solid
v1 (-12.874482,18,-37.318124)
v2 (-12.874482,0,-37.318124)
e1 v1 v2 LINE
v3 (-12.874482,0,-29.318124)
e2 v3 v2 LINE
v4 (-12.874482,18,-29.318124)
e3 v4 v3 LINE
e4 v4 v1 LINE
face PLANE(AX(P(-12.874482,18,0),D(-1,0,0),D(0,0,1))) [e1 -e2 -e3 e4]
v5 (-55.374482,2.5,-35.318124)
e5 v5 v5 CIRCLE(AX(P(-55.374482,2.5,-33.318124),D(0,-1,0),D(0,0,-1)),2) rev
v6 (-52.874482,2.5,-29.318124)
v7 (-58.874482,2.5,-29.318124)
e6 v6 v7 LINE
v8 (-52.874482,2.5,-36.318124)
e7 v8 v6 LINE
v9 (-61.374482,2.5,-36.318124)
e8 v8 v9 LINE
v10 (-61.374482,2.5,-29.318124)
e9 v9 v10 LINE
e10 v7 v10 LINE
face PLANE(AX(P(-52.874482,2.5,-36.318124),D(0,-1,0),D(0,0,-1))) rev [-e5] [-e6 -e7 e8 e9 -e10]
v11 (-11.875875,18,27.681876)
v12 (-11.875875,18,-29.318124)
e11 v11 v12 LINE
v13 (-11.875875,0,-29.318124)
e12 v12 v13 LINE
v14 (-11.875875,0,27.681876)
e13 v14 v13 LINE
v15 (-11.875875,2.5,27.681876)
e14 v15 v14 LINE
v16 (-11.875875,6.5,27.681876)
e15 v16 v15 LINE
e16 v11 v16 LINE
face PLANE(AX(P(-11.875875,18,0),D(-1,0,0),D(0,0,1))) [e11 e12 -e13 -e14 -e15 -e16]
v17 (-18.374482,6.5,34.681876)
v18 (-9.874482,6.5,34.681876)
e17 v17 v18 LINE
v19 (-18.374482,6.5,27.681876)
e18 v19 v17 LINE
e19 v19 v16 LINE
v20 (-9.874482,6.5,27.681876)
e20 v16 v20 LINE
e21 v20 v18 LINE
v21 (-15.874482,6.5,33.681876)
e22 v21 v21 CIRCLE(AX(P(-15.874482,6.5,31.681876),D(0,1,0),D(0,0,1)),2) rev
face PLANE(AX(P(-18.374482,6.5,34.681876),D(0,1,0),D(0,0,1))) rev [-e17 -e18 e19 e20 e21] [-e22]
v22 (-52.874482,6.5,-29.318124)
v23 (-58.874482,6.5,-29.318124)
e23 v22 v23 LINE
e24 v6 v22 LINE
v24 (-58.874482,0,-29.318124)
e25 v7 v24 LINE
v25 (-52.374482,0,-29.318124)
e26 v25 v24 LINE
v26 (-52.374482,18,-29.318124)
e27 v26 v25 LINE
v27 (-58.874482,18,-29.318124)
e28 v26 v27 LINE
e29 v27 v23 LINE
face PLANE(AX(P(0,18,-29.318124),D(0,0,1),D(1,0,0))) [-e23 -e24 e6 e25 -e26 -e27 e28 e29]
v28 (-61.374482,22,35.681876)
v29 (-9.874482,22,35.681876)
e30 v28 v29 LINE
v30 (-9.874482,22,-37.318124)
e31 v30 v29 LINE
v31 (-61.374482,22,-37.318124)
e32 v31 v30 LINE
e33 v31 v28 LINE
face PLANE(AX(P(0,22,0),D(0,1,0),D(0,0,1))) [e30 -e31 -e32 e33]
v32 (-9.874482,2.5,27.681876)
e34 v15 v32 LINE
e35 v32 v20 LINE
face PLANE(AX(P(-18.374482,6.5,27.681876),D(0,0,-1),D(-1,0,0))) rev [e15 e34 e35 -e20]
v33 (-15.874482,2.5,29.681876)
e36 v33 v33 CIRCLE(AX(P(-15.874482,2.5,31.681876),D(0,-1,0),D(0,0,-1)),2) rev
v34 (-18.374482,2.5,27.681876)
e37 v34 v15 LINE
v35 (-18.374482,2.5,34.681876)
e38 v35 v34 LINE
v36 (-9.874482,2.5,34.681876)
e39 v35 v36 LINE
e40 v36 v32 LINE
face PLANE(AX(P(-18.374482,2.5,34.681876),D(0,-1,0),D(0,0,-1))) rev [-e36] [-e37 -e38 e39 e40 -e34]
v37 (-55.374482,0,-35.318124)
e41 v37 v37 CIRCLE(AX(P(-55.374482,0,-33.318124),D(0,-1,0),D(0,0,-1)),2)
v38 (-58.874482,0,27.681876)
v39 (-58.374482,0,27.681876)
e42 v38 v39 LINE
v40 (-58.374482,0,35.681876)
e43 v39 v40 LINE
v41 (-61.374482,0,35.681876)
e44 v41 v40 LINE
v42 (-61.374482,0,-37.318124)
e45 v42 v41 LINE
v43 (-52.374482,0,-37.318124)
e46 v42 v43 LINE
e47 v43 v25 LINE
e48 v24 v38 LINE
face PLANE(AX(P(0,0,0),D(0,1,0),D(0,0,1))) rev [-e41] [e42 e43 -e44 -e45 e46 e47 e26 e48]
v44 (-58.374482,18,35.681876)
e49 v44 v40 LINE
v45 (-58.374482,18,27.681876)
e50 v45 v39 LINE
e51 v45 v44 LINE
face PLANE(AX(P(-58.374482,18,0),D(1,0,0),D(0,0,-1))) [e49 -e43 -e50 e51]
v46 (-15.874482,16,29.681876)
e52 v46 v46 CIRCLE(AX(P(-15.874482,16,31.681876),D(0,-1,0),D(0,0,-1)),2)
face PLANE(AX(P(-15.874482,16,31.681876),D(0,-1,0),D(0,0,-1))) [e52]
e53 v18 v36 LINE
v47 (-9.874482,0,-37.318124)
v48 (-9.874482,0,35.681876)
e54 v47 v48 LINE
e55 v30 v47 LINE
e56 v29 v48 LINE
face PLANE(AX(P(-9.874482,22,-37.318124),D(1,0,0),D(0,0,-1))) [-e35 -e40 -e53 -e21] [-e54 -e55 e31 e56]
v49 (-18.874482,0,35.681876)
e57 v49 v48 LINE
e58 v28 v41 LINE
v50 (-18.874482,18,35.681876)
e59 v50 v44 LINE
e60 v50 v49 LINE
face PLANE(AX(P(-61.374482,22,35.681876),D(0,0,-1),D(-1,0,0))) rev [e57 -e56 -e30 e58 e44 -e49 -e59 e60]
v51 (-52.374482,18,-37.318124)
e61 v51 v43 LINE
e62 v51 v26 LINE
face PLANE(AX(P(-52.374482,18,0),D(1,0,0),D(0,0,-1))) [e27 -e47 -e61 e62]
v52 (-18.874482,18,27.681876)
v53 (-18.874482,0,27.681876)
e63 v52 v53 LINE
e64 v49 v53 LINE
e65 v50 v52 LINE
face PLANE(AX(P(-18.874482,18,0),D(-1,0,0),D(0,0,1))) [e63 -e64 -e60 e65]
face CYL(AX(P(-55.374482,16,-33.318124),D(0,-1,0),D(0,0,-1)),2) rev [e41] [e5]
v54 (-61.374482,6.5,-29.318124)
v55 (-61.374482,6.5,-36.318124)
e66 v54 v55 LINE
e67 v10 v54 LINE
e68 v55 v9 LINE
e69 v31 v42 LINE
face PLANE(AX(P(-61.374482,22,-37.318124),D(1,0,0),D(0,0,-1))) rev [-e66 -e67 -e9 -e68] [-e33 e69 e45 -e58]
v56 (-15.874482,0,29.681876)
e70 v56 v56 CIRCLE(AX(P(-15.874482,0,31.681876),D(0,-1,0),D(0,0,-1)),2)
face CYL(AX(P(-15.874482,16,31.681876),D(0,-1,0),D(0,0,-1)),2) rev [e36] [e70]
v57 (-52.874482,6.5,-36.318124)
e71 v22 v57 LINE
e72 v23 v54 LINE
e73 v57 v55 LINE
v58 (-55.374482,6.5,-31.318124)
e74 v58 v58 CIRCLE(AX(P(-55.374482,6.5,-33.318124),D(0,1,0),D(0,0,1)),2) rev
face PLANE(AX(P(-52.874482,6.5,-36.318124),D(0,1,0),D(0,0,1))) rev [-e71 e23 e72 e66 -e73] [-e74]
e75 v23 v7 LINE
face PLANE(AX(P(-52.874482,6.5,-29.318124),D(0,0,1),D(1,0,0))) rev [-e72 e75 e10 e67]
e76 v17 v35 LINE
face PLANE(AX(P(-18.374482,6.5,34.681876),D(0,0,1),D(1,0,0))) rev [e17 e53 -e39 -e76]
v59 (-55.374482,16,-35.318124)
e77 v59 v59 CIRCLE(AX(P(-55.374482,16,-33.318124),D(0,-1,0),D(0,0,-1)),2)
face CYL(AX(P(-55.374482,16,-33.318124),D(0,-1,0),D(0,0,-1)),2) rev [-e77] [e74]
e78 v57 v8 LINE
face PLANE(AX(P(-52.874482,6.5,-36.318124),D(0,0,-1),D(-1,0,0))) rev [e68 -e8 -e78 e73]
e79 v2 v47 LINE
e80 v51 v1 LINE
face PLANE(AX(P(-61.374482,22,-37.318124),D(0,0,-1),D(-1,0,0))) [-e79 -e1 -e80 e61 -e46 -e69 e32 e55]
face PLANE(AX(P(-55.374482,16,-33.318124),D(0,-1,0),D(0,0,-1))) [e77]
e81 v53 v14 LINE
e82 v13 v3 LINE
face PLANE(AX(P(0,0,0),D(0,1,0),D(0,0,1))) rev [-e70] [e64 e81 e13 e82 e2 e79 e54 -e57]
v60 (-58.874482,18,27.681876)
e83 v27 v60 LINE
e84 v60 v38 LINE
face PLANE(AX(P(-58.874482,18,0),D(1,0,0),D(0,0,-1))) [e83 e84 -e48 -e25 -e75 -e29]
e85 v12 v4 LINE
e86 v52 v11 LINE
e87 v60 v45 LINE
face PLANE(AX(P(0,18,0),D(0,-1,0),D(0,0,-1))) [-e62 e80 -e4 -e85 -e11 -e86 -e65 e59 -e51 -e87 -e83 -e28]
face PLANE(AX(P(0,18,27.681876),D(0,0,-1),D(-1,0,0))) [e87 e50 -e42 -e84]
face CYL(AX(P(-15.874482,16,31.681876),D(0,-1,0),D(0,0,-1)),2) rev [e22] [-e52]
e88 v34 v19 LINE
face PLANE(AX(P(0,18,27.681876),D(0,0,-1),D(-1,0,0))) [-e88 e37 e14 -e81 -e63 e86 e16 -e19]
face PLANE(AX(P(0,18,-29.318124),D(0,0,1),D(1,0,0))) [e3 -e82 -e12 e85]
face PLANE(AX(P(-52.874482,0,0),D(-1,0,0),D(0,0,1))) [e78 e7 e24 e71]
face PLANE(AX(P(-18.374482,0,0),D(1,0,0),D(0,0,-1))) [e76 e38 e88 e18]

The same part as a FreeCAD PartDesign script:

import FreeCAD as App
import Part
import Sketcher

V = App.Vector
Q = App.Units.Quantity

doc = App.newDocument("Part")
body = doc.addObject("PartDesign::Body", "Body")

# Sketch on XZ plane
sketch1 = body.newObject("Sketcher::SketchObject", "Sketch")
sketch1.AttachmentSupport = (doc.getObject("XZ_Plane"), [""])
sketch1.MapMode = "FlatFace"
sketch1.addGeometry([
    Part.LineSegment(V(-61, -37, 0), V(-61, 36, 0)),
    Part.LineSegment(V(-61, 36, 0), V(-10, 36, 0)),
    Part.LineSegment(V(-10, 36, 0), V(-10, -37, 0)),
    Part.LineSegment(V(-10, -37, 0), V(-61, -37, 0)),
], False)
sketch1.addConstraint([
    Sketcher.Constraint("Coincident", 0, 2, 1, 1),
    Sketcher.Constraint("Coincident", 1, 2, 2, 1),
    Sketcher.Constraint("Coincident", 2, 2, 3, 1),
    Sketcher.Constraint("Coincident", 3, 2, 0, 1),
    Sketcher.Constraint("Vertical", 0),
    Sketcher.Constraint("Horizontal", 1),
    Sketcher.Constraint("Vertical", 2),
    Sketcher.Constraint("Horizontal", 3),
    Sketcher.Constraint("DistanceY", 0, 1, 0, 2, Q("73 mm")),
    Sketcher.Constraint("DistanceX", 1, 1, 1, 2, Q("51.5 mm")),
    Sketcher.Constraint("DistanceX", 0, 2, -1, 1, Q("61.374482 mm")),
    Sketcher.Constraint("DistanceY", -1, 1, 0, 2, Q("35.681876 mm")),
])
pad1 = body.newObject("PartDesign::Pad", "Pad")
pad1.Profile = sketch1
pad1.Length = 22
pad1.Reversed = True

# Sketch on XZ plane
sketch2 = body.newObject("Sketcher::SketchObject", "Sketch001")
sketch2.AttachmentSupport = (doc.getObject("XZ_Plane"), [""])
sketch2.MapMode = "FlatFace"
sketch2.addGeometry([
    Part.LineSegment(V(-58.4, 27.7, 0), V(-58.9, 27.7, 0)),  # 0
    Part.LineSegment(V(-58.9, 27.7, 0), V(-58.9, -29.3, 0)),  # 1
    Part.LineSegment(V(-58.9, -29.3, 0), V(-52.4, -29.3, 0)),  # 2
    Part.LineSegment(V(-52.4, -29.3, 0), V(-52.4, -37.3, 0)),  # 3
    Part.LineSegment(V(-52.4, -37.3, 0), V(-12.9, -37.3, 0)),  # 4
    Part.LineSegment(V(-12.9, -37.3, 0), V(-12.9, -29.3, 0)),  # 5
    Part.LineSegment(V(-12.9, -29.3, 0), V(-11.9, -29.3, 0)),  # 6
    Part.LineSegment(V(-11.9, -29.3, 0), V(-11.9, 27.7, 0)),  # 7
    Part.LineSegment(V(-11.9, 27.7, 0), V(-18.9, 27.7, 0)),  # 8
    Part.LineSegment(V(-18.9, 27.7, 0), V(-18.9, 35.7, 0)),  # 9
    Part.LineSegment(V(-18.9, 35.7, 0), V(-58.4, 35.7, 0)),  # 10
    Part.LineSegment(V(-58.4, 35.7, 0), V(-58.4, 27.7, 0)),  # 11
], False)
sketch2.addConstraint([
    Sketcher.Constraint("Coincident", 0, 2, 1, 1),
    Sketcher.Constraint("Coincident", 1, 2, 2, 1),
    Sketcher.Constraint("Coincident", 2, 2, 3, 1),
    Sketcher.Constraint("Coincident", 3, 2, 4, 1),
    Sketcher.Constraint("Coincident", 4, 2, 5, 1),
    Sketcher.Constraint("Coincident", 5, 2, 6, 1),
    Sketcher.Constraint("Coincident", 6, 2, 7, 1),
    Sketcher.Constraint("Coincident", 7, 2, 8, 1),
    Sketcher.Constraint("Coincident", 8, 2, 9, 1),
    Sketcher.Constraint("Coincident", 9, 2, 10, 1),
    Sketcher.Constraint("Coincident", 10, 2, 11, 1),
    Sketcher.Constraint("Coincident", 11, 2, 0, 1),
    Sketcher.Constraint("Horizontal", 0),
    Sketcher.Constraint("Vertical", 1),
    Sketcher.Constraint("Horizontal", 2),
    Sketcher.Constraint("Vertical", 3),
    Sketcher.Constraint("Horizontal", 4),
    Sketcher.Constraint("Vertical", 5),
    Sketcher.Constraint("Horizontal", 6),
    Sketcher.Constraint("Vertical", 7),
    Sketcher.Constraint("Horizontal", 8),
    Sketcher.Constraint("Vertical", 9),
    Sketcher.Constraint("Horizontal", 10),
    Sketcher.Constraint("Vertical", 11),
    Sketcher.Constraint("Horizontal", 2, 2, 5, 2),
    Sketcher.Constraint("Horizontal", 0, 2, 7, 2),
    Sketcher.Constraint("Equal", 4, 10),
    Sketcher.Constraint("Equal", 5, 9),
    Sketcher.Constraint("DistanceY", 1, 2, 1, 1, Q("57 mm")),
    Sketcher.Constraint("DistanceY", 3, 2, 3, 1, Q("8 mm")),
    Sketcher.Constraint("DistanceX", 0, 2, 0, 1, Q("0.5 mm")),
    Sketcher.Constraint("DistanceX", 2, 1, 2, 2, Q("6.5 mm")),
    Sketcher.Constraint("DistanceX", 4, 1, 4, 2, Q("39.5 mm")),
    Sketcher.Constraint("DistanceX", 6, 1, 6, 2, Q("0.998607 mm")),
    Sketcher.Constraint("DistanceX", 0, 2, -1, 1, Q("58.874482 mm")),
    Sketcher.Constraint("DistanceY", -1, 1, 0, 2, Q("27.681876 mm")),
])
pocket1 = body.newObject("PartDesign::Pocket", "Pocket")
pocket1.Profile = sketch2
pocket1.Length = 18

# Sketch on XZ plane
sketch3 = body.newObject("Sketcher::SketchObject", "Sketch002")
sketch3.AttachmentSupport = (doc.getObject("XZ_Plane"), [""])
sketch3.MapMode = "FlatFace"
sketch3.addGeometry([
    Part.Circle(V(-15.9, 31.7, 0), V(0, 0, 1), 2),
    Part.Circle(V(-55.4, -33.3, 0), V(0, 0, 1), 2),
], False)
sketch3.addConstraint([
    Sketcher.Constraint("Equal", 0, 1),
    Sketcher.Constraint("Diameter", 0, Q("4 mm")),
    Sketcher.Constraint("DistanceY", 1, 3, 0, 3, Q("65 mm")),
    Sketcher.Constraint("DistanceX", 1, 3, 0, 3, Q("39.5 mm")),
    Sketcher.Constraint("DistanceX", 0, 3, -1, 1, Q("15.874482 mm")),
    Sketcher.Constraint("DistanceY", -1, 1, 0, 3, Q("31.681876 mm")),
])
pocket2 = body.newObject("PartDesign::Pocket", "Pocket001")
pocket2.Profile = sketch3
pocket2.Length = 16

# Sketch on YZ plane
sketch4 = body.newObject("Sketcher::SketchObject", "Sketch003")
sketch4.AttachmentSupport = (doc.getObject("YZ_Plane"), [""])
sketch4.MapMode = "FlatFace"
sketch4.AttachmentOffset = App.Placement(V(0, 0, -61.374482), App.Rotation())
sketch4.addGeometry([
    Part.LineSegment(V(6.5, -36.3, 0), V(2.5, -36.3, 0)),
    Part.LineSegment(V(2.5, -36.3, 0), V(2.5, -29.3, 0)),
    Part.LineSegment(V(2.5, -29.3, 0), V(6.5, -29.3, 0)),
    Part.LineSegment(V(6.5, -29.3, 0), V(6.5, -36.3, 0)),
], False)
sketch4.addConstraint([
    Sketcher.Constraint("Coincident", 0, 2, 1, 1),
    Sketcher.Constraint("Coincident", 1, 2, 2, 1),
    Sketcher.Constraint("Coincident", 2, 2, 3, 1),
    Sketcher.Constraint("Coincident", 3, 2, 0, 1),
    Sketcher.Constraint("Horizontal", 0),
    Sketcher.Constraint("Vertical", 1),
    Sketcher.Constraint("Horizontal", 2),
    Sketcher.Constraint("Vertical", 3),
    Sketcher.Constraint("DistanceX", 0, 2, 0, 1, Q("4 mm")),
    Sketcher.Constraint("DistanceY", 1, 1, 1, 2, Q("7 mm")),
    Sketcher.Constraint("DistanceX", -1, 1, 0, 2, Q("2.5 mm")),
    Sketcher.Constraint("DistanceY", 0, 2, -1, 1, Q("36.318124 mm")),
])
pocket3 = body.newObject("PartDesign::Pocket", "Pocket002")
pocket3.Profile = sketch4
pocket3.Length = 8.5
pocket3.Reversed = True

# Sketch on YZ plane
sketch5 = body.newObject("Sketcher::SketchObject", "Sketch004")
sketch5.AttachmentSupport = (doc.getObject("YZ_Plane"), [""])
sketch5.MapMode = "FlatFace"
sketch5.AttachmentOffset = App.Placement(V(0, 0, -9.874482), App.Rotation())
sketch5.addGeometry([
    Part.LineSegment(V(6.5, 34.7, 0), V(2.5, 34.7, 0)),
    Part.LineSegment(V(2.5, 34.7, 0), V(2.5, 27.7, 0)),
    Part.LineSegment(V(2.5, 27.7, 0), V(6.5, 27.7, 0)),
    Part.LineSegment(V(6.5, 27.7, 0), V(6.5, 34.7, 0)),
], False)
sketch5.addConstraint([
    Sketcher.Constraint("Coincident", 0, 2, 1, 1),
    Sketcher.Constraint("Coincident", 1, 2, 2, 1),
    Sketcher.Constraint("Coincident", 2, 2, 3, 1),
    Sketcher.Constraint("Coincident", 3, 2, 0, 1),
    Sketcher.Constraint("Horizontal", 0),
    Sketcher.Constraint("Vertical", 1),
    Sketcher.Constraint("Horizontal", 2),
    Sketcher.Constraint("Vertical", 3),
    Sketcher.Constraint("DistanceX", 0, 2, 0, 1, Q("4 mm")),
    Sketcher.Constraint("DistanceY", 1, 2, 1, 1, Q("7 mm")),
    Sketcher.Constraint("DistanceX", -1, 1, 0, 2, Q("2.5 mm")),
    Sketcher.Constraint("DistanceY", -1, 1, 0, 2, Q("34.681876 mm")),
])
pocket4 = body.newObject("PartDesign::Pocket", "Pocket003")
pocket4.Profile = sketch5
pocket4.Length = 8.5

doc.recompute()
